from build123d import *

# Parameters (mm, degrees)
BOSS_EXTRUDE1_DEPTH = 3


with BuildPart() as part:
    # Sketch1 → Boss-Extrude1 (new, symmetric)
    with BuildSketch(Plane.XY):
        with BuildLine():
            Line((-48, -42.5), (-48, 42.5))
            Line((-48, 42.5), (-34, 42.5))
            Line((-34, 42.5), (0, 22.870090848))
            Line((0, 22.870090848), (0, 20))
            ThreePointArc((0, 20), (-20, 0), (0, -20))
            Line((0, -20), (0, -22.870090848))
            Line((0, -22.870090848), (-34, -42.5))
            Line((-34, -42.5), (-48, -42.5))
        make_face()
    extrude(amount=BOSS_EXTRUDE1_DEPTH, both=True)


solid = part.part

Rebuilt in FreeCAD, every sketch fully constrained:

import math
import FreeCAD as App
import Part
import Sketcher

V = App.Vector
Q = App.Units.Quantity

doc = App.newDocument("Part")
body = doc.addObject("PartDesign::Body", "Body")

sketch1 = body.newObject("Sketcher::SketchObject", "Sketch")
sketch1.AttachmentSupport = (doc.getObject("XY_Plane"), [""])
sketch1.MapMode = "FlatFace"
sketch1.addGeometry([
    Part.LineSegment(V(-48, 42.5, 0), V(-48, -42.5, 0)),
    Part.LineSegment(V(-48, -42.5, 0), V(-34, -42.5, 0)),
    Part.LineSegment(V(-34, -42.5, 0), V(0, -22.870091, 0)),
    Part.LineSegment(V(0, -22.870091, 0), V(0, -20, 0)),
    Part.ArcOfCircle(Part.Circle(V(0, 0, 0), V(0, 0, 1), 20), math.radians(90), math.radians(270)),
    Part.LineSegment(V(0, 20, 0), V(0, 22.870091, 0)),
    Part.LineSegment(V(0, 22.870091, 0), V(-34, 42.5, 0)),
    Part.LineSegment(V(-34, 42.5, 0), V(-48, 42.5, 0)),
], False)
sketch1.addConstraint([
    Sketcher.Constraint("Coincident", 0, 2, 1, 1),
    Sketcher.Constraint("Coincident", 1, 2, 2, 1),
    Sketcher.Constraint("Coincident", 2, 2, 3, 1),
    Sketcher.Constraint("Coincident", 3, 2, 4, 2),
    Sketcher.Constraint("Coincident", 4, 1, 5, 1),
    Sketcher.Constraint("Coincident", 5, 2, 6, 1),
    Sketcher.Constraint("Coincident", 6, 2, 7, 1),
    Sketcher.Constraint("Coincident", 7, 2, 0, 1),
    Sketcher.Constraint("Vertical", 0),
    Sketcher.Constraint("Horizontal", 1),
    Sketcher.Constraint("Vertical", 3),
    Sketcher.Constraint("Vertical", 5),
    Sketcher.Constraint("Horizontal", 7),
    Sketcher.Constraint("Coincident", 4, 3, -1, 1),
    Sketcher.Constraint("Symmetric", 2, 2, 5, 2, -1, 1),
    Sketcher.Constraint("Symmetric", 1, 2, 6, 2, -1),
    Sketcher.Constraint("PointOnObject", 2, 2, -2),
    Sketcher.Constraint("Radius", 4, 20.0),
    Sketcher.Constraint("DistanceX", 1, 1, 1, 2, 14.0),
    Sketcher.Constraint("DistanceY", 0, 2, 0, 1, 85.0),
    Sketcher.Constraint("Angle", 2, Q("30 deg")),
    Sketcher.Constraint("DistanceX", 0, 2, -1, 1, 48.0),
])
pad1 = body.newObject("PartDesign::Pad", "Pad")
pad1.Profile = sketch1
pad1.Length = 6
pad1.Midplane = True

doc.recompute()
